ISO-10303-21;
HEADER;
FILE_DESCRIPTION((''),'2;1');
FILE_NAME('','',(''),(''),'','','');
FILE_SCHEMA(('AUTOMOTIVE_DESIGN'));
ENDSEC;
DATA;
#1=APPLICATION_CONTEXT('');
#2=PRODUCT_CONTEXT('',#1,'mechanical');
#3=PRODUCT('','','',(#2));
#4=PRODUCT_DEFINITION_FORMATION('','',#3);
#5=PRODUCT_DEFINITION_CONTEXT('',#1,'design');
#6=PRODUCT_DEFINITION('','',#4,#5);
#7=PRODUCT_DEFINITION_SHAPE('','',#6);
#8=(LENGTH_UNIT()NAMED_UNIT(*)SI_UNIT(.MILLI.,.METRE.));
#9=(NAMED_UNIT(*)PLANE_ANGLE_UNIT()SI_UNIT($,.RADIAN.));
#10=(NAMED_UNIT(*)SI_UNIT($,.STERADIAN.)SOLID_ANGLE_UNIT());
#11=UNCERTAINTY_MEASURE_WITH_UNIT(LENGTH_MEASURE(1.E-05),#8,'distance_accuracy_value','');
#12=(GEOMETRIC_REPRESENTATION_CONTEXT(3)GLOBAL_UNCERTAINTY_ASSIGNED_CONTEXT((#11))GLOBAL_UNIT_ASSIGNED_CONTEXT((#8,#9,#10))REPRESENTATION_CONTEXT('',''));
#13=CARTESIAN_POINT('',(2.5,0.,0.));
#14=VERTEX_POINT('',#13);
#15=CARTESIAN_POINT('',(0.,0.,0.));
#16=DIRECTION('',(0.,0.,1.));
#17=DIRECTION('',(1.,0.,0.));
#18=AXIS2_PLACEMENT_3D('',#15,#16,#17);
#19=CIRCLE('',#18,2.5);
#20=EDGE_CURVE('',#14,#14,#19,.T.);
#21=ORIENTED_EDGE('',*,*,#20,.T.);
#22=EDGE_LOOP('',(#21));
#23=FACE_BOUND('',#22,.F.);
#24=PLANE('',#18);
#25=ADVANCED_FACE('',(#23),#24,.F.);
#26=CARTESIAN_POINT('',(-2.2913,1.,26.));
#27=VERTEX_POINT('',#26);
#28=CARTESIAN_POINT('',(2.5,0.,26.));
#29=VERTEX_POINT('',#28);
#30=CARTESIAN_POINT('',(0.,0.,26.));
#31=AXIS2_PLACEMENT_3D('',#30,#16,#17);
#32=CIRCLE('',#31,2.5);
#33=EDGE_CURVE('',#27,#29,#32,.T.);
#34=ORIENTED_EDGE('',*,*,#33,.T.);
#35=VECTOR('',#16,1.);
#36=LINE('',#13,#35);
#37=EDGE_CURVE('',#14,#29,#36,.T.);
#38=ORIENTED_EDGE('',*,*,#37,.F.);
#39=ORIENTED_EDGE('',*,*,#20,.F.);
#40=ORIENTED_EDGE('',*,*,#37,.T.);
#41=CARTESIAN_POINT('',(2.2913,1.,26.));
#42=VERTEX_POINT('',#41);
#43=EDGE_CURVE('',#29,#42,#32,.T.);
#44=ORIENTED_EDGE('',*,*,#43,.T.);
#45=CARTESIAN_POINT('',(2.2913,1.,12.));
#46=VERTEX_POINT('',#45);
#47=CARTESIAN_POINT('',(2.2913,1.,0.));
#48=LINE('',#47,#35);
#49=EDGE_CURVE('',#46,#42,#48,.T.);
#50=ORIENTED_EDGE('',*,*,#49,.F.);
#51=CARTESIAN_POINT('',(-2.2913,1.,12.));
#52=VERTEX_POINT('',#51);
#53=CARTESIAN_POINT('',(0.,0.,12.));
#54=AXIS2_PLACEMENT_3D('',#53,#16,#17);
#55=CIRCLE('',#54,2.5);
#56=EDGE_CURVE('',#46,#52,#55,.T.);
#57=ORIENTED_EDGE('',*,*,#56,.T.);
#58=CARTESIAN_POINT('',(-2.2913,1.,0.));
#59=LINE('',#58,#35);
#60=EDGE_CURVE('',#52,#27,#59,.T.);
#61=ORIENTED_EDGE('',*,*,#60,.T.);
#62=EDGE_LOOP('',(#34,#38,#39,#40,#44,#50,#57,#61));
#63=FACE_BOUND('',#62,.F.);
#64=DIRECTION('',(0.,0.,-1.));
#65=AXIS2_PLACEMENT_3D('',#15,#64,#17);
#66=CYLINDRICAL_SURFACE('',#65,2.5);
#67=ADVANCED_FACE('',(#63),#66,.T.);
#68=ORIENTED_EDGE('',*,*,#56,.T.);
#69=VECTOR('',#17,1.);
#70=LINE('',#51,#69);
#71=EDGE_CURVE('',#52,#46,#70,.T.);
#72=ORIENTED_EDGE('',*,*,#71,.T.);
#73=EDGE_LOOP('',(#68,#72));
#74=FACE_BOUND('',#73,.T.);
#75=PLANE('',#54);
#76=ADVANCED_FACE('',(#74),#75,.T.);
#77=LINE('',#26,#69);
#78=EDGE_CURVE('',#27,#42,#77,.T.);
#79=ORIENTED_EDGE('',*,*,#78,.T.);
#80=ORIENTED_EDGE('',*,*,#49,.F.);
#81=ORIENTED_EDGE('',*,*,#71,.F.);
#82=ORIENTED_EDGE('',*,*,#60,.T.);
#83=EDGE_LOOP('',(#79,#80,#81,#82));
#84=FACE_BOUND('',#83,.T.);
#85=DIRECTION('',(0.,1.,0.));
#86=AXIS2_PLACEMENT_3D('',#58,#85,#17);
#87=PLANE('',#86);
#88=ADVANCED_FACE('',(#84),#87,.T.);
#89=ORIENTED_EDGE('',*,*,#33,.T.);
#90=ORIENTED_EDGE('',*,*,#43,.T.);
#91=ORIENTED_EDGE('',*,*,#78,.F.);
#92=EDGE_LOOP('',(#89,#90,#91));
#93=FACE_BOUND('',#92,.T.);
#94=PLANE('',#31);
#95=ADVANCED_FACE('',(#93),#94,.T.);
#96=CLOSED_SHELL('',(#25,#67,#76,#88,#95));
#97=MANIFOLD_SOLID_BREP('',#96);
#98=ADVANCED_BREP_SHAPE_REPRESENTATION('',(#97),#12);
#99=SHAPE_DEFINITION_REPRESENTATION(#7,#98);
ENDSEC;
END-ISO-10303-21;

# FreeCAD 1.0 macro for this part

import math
import FreeCAD as App
import Part
import Sketcher
from FreeCAD import Vector
Q = App.Units.Quantity

doc = App.newDocument("Part")
body = doc.addObject("PartDesign::Body", "Body")

sketch1 = doc.addObject("Sketcher::SketchObject", "Sketch")
body.addObject(sketch1)
sketch1.AttachmentSupport = (doc.XY_Plane, [""])
sketch1.MapMode = "FlatFace"
sketch1.addGeometry([
    Part.ArcOfCircle(Part.Circle(Vector(0, 0, 0), Vector(0, 0, 1), 2.5), math.radians(156), math.radians(384)),
    Part.LineSegment(Vector(-2.3, 1, 0), Vector(2.3, 1, 0)),
], False)
sketch1.addConstraint([
    Sketcher.Constraint("Coincident", 0, 1, 1, 1),
    Sketcher.Constraint("Coincident", 1, 2, 0, 2),
    Sketcher.Constraint("Horizontal", 1),
    Sketcher.Constraint("Coincident", 0, 3, -1, 1),
    Sketcher.Constraint("Radius", 0, Q("2.5 mm")),
    Sketcher.Constraint("DistanceY", -1, 1, 0, 1, Q("1 mm")),
])
pad1 = doc.addObject("PartDesign::Pad", "Pad")
body.addObject(pad1)
pad1.Profile = sketch1
pad1.Length = 26

sketch2 = doc.addObject("Sketcher::SketchObject", "Sketch001")
body.addObject(sketch2)
sketch2.AttachmentSupport = (doc.XY_Plane, [""])
sketch2.MapMode = "FlatFace"
sketch2.addGeometry([
    Part.LineSegment(Vector(-2.3, 1, 0), Vector(2.3, 1, 0)),
    Part.ArcOfCircle(Part.Circle(Vector(0, 0, 0), Vector(0, 0, 1), 2.5), math.radians(24), math.radians(156)),
], False)
sketch2.addConstraint([
    Sketcher.Constraint("Coincident", 0, 1, 1, 2),
    Sketcher.Constraint("Coincident", 1, 1, 0, 2),
    Sketcher.Constraint("Horizontal", 0),
    Sketcher.Constraint("Coincident", 1, 3, -1, 1),
    Sketcher.Constraint("Radius", 1, Q("2.5 mm")),
    Sketcher.Constraint("DistanceY", -1, 1, 0, 1, Q("1 mm")),
])
pad2 = doc.addObject("PartDesign::Pad", "Pad001")
body.addObject(pad2)
pad2.Profile = sketch2
pad2.Length = 12

doc.recompute()
